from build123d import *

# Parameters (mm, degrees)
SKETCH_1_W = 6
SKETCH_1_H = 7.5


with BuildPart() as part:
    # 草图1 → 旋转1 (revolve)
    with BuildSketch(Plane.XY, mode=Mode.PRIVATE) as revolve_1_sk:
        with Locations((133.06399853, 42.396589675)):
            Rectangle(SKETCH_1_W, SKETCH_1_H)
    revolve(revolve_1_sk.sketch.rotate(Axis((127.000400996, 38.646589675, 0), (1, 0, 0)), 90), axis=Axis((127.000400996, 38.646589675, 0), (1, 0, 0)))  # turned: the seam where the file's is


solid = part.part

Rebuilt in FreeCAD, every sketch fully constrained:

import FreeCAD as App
import Part
import Sketcher

doc = App.newDocument("Part")
body = doc.addObject("PartDesign::Body", "Body")

# Sketch on XY plane
sketch1 = body.newObject("Sketcher::SketchObject", "Sketch")
sketch1.AttachmentSupport = (doc.getObject("XY_Plane"), [""])
sketch1.MapMode = "FlatFace"
sketch1.addGeometry(Part.LineSegment(App.Vector(130, 46, 0), App.Vector(130, 39, 0)), False)
sketch1.addGeometry(Part.LineSegment(App.Vector(130, 39, 0), App.Vector(136, 39, 0)), False)
sketch1.addGeometry(Part.LineSegment(App.Vector(136, 39, 0), App.Vector(136, 46, 0)), False)
sketch1.addGeometry(Part.LineSegment(App.Vector(136, 46, 0), App.Vector(130, 46, 0)), False)
sketch1.addGeometry(Part.LineSegment(App.Vector(130, 39, 0), App.Vector(136, 39, 0)), True)  # axis
sketch1.addConstraint(Sketcher.Constraint("Coincident", 0, 2, 1, 1))
sketch1.addConstraint(Sketcher.Constraint("Coincident", 1, 2, 2, 1))
sketch1.addConstraint(Sketcher.Constraint("Coincident", 2, 2, 3, 1))
sketch1.addConstraint(Sketcher.Constraint("Coincident", 3, 2, 0, 1))
sketch1.addConstraint(Sketcher.Constraint("Vertical", 0))
sketch1.addConstraint(Sketcher.Constraint("Horizontal", 1))
sketch1.addConstraint(Sketcher.Constraint("Vertical", 2))
sketch1.addConstraint(Sketcher.Constraint("Horizontal", 3))
sketch1.addConstraint(Sketcher.Constraint("Horizontal", 4))
sketch1.addConstraint(Sketcher.Constraint("Coincident", 4, 1, 0, 2))
sketch1.addConstraint(Sketcher.Constraint("Vertical", 2, 2, 4, 2))
sketch1.addConstraint(Sketcher.Constraint("DistanceX", 1, 1, 1, 2, 6.0))
sketch1.addConstraint(Sketcher.Constraint("DistanceY", 0, 2, 0, 1, 7.5))
sketch1.addConstraint(Sketcher.Constraint("DistanceX", -1, 1, 0, 2, 130.063999))
sketch1.addConstraint(Sketcher.Constraint("DistanceY", -1, 1, 0, 2, 38.64659))
revolution = body.newObject("PartDesign::Revolution", "Revolution")
revolution.Profile = sketch1
revolution.ReferenceAxis = (sketch1, ["Axis0"])
revolution.Angle = 360

doc.recompute()
